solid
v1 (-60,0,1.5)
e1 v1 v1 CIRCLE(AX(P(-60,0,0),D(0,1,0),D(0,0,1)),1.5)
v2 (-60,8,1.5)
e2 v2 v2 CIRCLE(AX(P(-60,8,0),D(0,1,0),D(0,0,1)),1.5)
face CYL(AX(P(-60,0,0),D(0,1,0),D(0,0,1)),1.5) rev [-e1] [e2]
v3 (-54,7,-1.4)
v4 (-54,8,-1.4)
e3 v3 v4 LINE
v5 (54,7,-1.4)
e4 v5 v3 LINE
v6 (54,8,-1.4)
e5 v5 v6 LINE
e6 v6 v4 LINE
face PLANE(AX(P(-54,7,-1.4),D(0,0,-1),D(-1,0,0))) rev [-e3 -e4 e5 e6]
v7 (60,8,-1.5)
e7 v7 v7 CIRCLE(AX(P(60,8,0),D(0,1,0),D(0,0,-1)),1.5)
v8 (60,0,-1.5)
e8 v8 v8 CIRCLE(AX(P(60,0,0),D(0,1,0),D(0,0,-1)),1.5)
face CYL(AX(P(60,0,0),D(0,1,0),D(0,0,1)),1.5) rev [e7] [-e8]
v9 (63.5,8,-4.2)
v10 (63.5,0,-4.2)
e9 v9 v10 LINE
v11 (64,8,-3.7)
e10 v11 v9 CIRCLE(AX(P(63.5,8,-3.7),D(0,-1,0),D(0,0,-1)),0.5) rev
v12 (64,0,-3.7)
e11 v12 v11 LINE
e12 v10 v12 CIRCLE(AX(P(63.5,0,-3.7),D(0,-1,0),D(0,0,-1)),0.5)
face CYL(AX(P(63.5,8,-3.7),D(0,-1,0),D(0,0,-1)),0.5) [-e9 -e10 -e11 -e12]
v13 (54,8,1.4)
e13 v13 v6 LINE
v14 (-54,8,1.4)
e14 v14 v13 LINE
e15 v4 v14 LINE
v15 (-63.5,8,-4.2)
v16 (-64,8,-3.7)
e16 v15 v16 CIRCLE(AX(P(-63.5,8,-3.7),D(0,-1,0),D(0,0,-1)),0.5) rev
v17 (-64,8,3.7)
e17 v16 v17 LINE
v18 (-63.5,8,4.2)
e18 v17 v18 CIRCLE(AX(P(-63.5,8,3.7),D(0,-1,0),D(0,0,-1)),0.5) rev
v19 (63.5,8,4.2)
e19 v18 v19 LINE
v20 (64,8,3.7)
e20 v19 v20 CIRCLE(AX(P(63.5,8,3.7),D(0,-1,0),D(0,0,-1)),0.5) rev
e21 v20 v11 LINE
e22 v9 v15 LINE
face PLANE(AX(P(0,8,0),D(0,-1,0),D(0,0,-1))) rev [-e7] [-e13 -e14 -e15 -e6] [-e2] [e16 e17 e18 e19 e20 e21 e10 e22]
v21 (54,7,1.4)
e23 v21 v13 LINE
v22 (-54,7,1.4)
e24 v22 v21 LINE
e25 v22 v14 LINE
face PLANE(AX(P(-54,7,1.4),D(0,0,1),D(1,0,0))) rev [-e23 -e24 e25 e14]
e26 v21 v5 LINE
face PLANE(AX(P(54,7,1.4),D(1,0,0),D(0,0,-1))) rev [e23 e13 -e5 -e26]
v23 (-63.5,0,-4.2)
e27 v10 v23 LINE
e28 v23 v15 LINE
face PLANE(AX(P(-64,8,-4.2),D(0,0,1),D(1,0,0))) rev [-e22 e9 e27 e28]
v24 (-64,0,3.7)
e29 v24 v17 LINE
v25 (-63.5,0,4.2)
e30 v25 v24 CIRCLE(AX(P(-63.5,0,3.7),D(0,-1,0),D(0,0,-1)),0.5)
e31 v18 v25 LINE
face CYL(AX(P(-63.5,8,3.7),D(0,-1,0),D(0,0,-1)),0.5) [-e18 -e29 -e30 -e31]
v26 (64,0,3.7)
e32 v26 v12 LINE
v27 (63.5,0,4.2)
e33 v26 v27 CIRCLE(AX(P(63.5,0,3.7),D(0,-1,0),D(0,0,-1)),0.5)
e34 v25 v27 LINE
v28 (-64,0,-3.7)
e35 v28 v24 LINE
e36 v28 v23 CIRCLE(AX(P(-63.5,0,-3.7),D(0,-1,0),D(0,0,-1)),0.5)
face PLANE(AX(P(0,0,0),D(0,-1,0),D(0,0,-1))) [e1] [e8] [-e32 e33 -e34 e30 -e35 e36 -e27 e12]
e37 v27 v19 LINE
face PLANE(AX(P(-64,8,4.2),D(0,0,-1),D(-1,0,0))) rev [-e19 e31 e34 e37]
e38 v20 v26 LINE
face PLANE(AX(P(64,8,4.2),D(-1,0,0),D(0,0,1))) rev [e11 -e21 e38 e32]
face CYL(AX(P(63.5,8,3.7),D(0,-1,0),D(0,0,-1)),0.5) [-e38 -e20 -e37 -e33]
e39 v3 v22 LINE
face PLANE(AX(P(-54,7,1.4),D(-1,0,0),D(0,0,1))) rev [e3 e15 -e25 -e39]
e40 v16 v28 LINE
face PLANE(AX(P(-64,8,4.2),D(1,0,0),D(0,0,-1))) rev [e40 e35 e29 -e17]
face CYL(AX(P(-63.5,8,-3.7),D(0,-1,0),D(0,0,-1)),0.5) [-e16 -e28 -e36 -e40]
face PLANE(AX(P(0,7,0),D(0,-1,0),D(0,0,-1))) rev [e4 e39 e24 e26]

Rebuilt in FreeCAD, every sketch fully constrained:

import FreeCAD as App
import Part
import Sketcher
Q = App.Units.Quantity


def edges_at(feature, points):
    """Names of the edges that pass closest to the given points."""
    edges = feature.Shape.Edges
    near = lambda p: min(range(len(edges)), key=lambda i: edges[i].distToShape(Part.Vertex(*p))[0])
    return sorted({f"Edge{near(p) + 1}" for p in points})

doc = App.newDocument("Part")
body = doc.addObject("PartDesign::Body", "Body")

sketch1 = body.newObject("Sketcher::SketchObject", "Sketch")
sketch1.AttachmentSupport = (doc.getObject("XZ_Plane"), [""])
sketch1.MapMode = "FlatFace"
sketch1.addGeometry([
    Part.LineSegment(App.Vector(-64, -4, 0), App.Vector(-64, 4, 0)),
    Part.LineSegment(App.Vector(-64, 4, 0), App.Vector(64, 4, 0)),
    Part.LineSegment(App.Vector(64, 4, 0), App.Vector(64, -4, 0)),
    Part.LineSegment(App.Vector(64, -4, 0), App.Vector(-64, -4, 0)),
], False)
sketch1.addConstraint([
    Sketcher.Constraint("Coincident", 0, 2, 1, 1),
    Sketcher.Constraint("Coincident", 1, 2, 2, 1),
    Sketcher.Constraint("Coincident", 2, 2, 3, 1),
    Sketcher.Constraint("Coincident", 3, 2, 0, 1),
    Sketcher.Constraint("Vertical", 0),
    Sketcher.Constraint("Horizontal", 1),
    Sketcher.Constraint("Vertical", 2),
    Sketcher.Constraint("Horizontal", 3),
    Sketcher.Constraint("Symmetric", 0, 2, 2, 2, -1, 1),
    Sketcher.Constraint("DistanceX", 1, 1, 1, 2, Q("128 mm")),
    Sketcher.Constraint("DistanceY", 0, 1, 0, 2, Q("8.4 mm")),
])
pad1 = body.newObject("PartDesign::Pad", "Pad")
pad1.Profile = sketch1
pad1.Length = 8
pad1.Reversed = True

sketch2 = body.newObject("Sketcher::SketchObject", "Sketch001")
sketch2.AttachmentSupport = (doc.getObject("XZ_Plane"), [""])
sketch2.MapMode = "FlatFace"
sketch2.AttachmentOffset = App.Placement(App.Vector(0, 0, -8), App.Rotation())
sketch2.addGeometry([
    Part.Circle(App.Vector(-60, 0, 0), App.Vector(0, 0, 1), 1.5),
    Part.Circle(App.Vector(60, 0, 0), App.Vector(0, 0, 1), 1.5),
], False)
sketch2.addConstraint([
    Sketcher.Constraint("Equal", 0, 1),
    Sketcher.Constraint("Symmetric", 0, 3, 1, 3, -1, 1),
    Sketcher.Constraint("PointOnObject", 0, 3, -1),
    Sketcher.Constraint("Diameter", 0, Q("3 mm")),
    Sketcher.Constraint("DistanceX", 0, 3, -1, 1, Q("60 mm")),
])
pocket1 = body.newObject("PartDesign::Pocket", "Pocket")
pocket1.Profile = sketch2
pocket1.Type = "ThroughAll"
pocket1.Reversed = True

sketch3 = body.newObject("Sketcher::SketchObject", "Sketch002")
sketch3.AttachmentSupport = (doc.getObject("XZ_Plane"), [""])
sketch3.MapMode = "FlatFace"
sketch3.AttachmentOffset = App.Placement(App.Vector(0, 0, -8), App.Rotation())
sketch3.addGeometry([
    Part.LineSegment(App.Vector(-54, -1.4, 0), App.Vector(-54, 1.4, 0)),
    Part.LineSegment(App.Vector(-54, 1.4, 0), App.Vector(54, 1.4, 0)),
    Part.LineSegment(App.Vector(54, 1.4, 0), App.Vector(54, -1.4, 0)),
    Part.LineSegment(App.Vector(54, -1.4, 0), App.Vector(-54, -1.4, 0)),
], False)
sketch3.addConstraint([
    Sketcher.Constraint("Coincident", 0, 2, 1, 1),
    Sketcher.Constraint("Coincident", 1, 2, 2, 1),
    Sketcher.Constraint("Coincident", 2, 2, 3, 1),
    Sketcher.Constraint("Coincident", 3, 2, 0, 1),
    Sketcher.Constraint("Vertical", 0),
    Sketcher.Constraint("Horizontal", 1),
    Sketcher.Constraint("Vertical", 2),
    Sketcher.Constraint("Horizontal", 3),
    Sketcher.Constraint("Symmetric", 0, 2, 2, 2, -1, 1),
    Sketcher.Constraint("DistanceX", 1, 1, 1, 2, Q("108 mm")),
    Sketcher.Constraint("DistanceY", 0, 1, 0, 2, Q("2.8 mm")),
])
pocket2 = body.newObject("PartDesign::Pocket", "Pocket001")
pocket2.Profile = sketch3
pocket2.Length = 1
pocket2.Reversed = True
doc.recompute()

fillet = body.newObject("PartDesign::Fillet", "Fillet")
fillet.Base = (pocket2, edges_at(pocket2, [
    (64, 4, 4.2),
    (-64, 4, 4.2),
    (-64, 4, -4.2),
    (64, 4, -4.2),
]))
fillet.Radius = 0.5

doc.recompute()
